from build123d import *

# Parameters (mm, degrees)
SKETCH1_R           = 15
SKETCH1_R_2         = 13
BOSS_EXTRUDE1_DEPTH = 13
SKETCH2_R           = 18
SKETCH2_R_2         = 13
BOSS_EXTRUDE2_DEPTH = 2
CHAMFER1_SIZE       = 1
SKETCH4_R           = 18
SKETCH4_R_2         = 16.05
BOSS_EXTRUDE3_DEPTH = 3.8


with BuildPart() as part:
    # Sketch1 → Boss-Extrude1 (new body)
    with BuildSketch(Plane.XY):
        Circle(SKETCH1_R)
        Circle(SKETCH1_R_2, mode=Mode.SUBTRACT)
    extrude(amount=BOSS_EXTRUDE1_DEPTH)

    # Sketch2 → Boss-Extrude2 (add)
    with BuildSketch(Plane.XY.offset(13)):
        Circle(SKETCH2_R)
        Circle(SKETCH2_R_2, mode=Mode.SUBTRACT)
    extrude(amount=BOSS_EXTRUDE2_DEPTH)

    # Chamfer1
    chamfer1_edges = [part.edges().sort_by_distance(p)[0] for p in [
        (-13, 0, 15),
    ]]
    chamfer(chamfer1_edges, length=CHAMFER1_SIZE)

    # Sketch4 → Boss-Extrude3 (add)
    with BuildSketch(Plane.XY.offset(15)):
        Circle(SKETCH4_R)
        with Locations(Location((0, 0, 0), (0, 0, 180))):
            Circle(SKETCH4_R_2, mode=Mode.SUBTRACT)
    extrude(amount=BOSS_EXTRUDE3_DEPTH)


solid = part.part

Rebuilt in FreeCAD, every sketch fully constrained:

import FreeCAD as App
import Part
import Sketcher
from FreeCAD import Vector


def edges_at(feature, points):
    """Names of the edges that pass closest to the given points."""
    edges = feature.Shape.Edges
    near = lambda p: min(range(len(edges)), key=lambda i: edges[i].distToShape(Part.Vertex(*p))[0])
    return sorted({f"Edge{near(p) + 1}" for p in points})

doc = App.newDocument("Part")
body = doc.addObject("PartDesign::Body", "Body")

sketch1 = body.newObject("Sketcher::SketchObject", "Sketch")
sketch1.AttachmentSupport = (doc.getObject("XY_Plane"), [""])
sketch1.MapMode = "FlatFace"
sketch1.addGeometry([
    Part.Circle(Vector(0, 0, 0), Vector(0, 0, 1), 15),
    Part.Circle(Vector(0, 0, 0), Vector(0, 0, 1), 13),
], False)
sketch1.addConstraint([
    Sketcher.Constraint("Coincident", 0, 3, -1, 1),
    Sketcher.Constraint("Coincident", 1, 3, -1, 1),
    Sketcher.Constraint("Diameter", 0, 30.0),
    Sketcher.Constraint("Diameter", 1, 26.0),
])
pad1 = body.newObject("PartDesign::Pad", "Pad")
pad1.Profile = sketch1
pad1.Length = 13

sketch2 = body.newObject("Sketcher::SketchObject", "Sketch001")
sketch2.AttachmentSupport = (doc.getObject("XY_Plane"), [""])
sketch2.MapMode = "FlatFace"
sketch2.AttachmentOffset = App.Placement(Vector(0, 0, 13), App.Rotation())
sketch2.addGeometry([
    Part.Circle(Vector(0, 0, 0), Vector(0, 0, 1), 18),
    Part.Circle(Vector(0, 0, 0), Vector(0, 0, 1), 13),
], False)
sketch2.addConstraint([
    Sketcher.Constraint("Coincident", 0, 3, -1, 1),
    Sketcher.Constraint("Coincident", 1, 3, -1, 1),
    Sketcher.Constraint("Diameter", 0, 36.0),
    Sketcher.Constraint("Diameter", 1, 26.0),
])
pad2 = body.newObject("PartDesign::Pad", "Pad001")
pad2.Profile = sketch2
pad2.Length = 2
doc.recompute()

chamfer = body.newObject("PartDesign::Chamfer", "Chamfer")
chamfer.Base = (pad2, edges_at(pad2, [(-13, 0, 15)]))
chamfer.Size = 1

sketch3 = body.newObject("Sketcher::SketchObject", "Sketch002")
sketch3.AttachmentSupport = (doc.getObject("XY_Plane"), [""])
sketch3.MapMode = "FlatFace"
sketch3.AttachmentOffset = App.Placement(Vector(0, 0, 15), App.Rotation())
sketch3.addGeometry([
    Part.Circle(Vector(0, 0, 0), Vector(0, 0, 1), 18),
    Part.Circle(Vector(0, 0, 0), Vector(0, 0, 1), 16),
], False)
sketch3.addConstraint([
    Sketcher.Constraint("Coincident", 0, 3, -1, 1),
    Sketcher.Constraint("Coincident", 1, 3, -1, 1),
    Sketcher.Constraint("Diameter", 0, 36.0),
    Sketcher.Constraint("Diameter", 1, 32.1),
])
pad3 = body.newObject("PartDesign::Pad", "Pad002")
pad3.Profile = sketch3
pad3.Length = 3.8

doc.recompute()
